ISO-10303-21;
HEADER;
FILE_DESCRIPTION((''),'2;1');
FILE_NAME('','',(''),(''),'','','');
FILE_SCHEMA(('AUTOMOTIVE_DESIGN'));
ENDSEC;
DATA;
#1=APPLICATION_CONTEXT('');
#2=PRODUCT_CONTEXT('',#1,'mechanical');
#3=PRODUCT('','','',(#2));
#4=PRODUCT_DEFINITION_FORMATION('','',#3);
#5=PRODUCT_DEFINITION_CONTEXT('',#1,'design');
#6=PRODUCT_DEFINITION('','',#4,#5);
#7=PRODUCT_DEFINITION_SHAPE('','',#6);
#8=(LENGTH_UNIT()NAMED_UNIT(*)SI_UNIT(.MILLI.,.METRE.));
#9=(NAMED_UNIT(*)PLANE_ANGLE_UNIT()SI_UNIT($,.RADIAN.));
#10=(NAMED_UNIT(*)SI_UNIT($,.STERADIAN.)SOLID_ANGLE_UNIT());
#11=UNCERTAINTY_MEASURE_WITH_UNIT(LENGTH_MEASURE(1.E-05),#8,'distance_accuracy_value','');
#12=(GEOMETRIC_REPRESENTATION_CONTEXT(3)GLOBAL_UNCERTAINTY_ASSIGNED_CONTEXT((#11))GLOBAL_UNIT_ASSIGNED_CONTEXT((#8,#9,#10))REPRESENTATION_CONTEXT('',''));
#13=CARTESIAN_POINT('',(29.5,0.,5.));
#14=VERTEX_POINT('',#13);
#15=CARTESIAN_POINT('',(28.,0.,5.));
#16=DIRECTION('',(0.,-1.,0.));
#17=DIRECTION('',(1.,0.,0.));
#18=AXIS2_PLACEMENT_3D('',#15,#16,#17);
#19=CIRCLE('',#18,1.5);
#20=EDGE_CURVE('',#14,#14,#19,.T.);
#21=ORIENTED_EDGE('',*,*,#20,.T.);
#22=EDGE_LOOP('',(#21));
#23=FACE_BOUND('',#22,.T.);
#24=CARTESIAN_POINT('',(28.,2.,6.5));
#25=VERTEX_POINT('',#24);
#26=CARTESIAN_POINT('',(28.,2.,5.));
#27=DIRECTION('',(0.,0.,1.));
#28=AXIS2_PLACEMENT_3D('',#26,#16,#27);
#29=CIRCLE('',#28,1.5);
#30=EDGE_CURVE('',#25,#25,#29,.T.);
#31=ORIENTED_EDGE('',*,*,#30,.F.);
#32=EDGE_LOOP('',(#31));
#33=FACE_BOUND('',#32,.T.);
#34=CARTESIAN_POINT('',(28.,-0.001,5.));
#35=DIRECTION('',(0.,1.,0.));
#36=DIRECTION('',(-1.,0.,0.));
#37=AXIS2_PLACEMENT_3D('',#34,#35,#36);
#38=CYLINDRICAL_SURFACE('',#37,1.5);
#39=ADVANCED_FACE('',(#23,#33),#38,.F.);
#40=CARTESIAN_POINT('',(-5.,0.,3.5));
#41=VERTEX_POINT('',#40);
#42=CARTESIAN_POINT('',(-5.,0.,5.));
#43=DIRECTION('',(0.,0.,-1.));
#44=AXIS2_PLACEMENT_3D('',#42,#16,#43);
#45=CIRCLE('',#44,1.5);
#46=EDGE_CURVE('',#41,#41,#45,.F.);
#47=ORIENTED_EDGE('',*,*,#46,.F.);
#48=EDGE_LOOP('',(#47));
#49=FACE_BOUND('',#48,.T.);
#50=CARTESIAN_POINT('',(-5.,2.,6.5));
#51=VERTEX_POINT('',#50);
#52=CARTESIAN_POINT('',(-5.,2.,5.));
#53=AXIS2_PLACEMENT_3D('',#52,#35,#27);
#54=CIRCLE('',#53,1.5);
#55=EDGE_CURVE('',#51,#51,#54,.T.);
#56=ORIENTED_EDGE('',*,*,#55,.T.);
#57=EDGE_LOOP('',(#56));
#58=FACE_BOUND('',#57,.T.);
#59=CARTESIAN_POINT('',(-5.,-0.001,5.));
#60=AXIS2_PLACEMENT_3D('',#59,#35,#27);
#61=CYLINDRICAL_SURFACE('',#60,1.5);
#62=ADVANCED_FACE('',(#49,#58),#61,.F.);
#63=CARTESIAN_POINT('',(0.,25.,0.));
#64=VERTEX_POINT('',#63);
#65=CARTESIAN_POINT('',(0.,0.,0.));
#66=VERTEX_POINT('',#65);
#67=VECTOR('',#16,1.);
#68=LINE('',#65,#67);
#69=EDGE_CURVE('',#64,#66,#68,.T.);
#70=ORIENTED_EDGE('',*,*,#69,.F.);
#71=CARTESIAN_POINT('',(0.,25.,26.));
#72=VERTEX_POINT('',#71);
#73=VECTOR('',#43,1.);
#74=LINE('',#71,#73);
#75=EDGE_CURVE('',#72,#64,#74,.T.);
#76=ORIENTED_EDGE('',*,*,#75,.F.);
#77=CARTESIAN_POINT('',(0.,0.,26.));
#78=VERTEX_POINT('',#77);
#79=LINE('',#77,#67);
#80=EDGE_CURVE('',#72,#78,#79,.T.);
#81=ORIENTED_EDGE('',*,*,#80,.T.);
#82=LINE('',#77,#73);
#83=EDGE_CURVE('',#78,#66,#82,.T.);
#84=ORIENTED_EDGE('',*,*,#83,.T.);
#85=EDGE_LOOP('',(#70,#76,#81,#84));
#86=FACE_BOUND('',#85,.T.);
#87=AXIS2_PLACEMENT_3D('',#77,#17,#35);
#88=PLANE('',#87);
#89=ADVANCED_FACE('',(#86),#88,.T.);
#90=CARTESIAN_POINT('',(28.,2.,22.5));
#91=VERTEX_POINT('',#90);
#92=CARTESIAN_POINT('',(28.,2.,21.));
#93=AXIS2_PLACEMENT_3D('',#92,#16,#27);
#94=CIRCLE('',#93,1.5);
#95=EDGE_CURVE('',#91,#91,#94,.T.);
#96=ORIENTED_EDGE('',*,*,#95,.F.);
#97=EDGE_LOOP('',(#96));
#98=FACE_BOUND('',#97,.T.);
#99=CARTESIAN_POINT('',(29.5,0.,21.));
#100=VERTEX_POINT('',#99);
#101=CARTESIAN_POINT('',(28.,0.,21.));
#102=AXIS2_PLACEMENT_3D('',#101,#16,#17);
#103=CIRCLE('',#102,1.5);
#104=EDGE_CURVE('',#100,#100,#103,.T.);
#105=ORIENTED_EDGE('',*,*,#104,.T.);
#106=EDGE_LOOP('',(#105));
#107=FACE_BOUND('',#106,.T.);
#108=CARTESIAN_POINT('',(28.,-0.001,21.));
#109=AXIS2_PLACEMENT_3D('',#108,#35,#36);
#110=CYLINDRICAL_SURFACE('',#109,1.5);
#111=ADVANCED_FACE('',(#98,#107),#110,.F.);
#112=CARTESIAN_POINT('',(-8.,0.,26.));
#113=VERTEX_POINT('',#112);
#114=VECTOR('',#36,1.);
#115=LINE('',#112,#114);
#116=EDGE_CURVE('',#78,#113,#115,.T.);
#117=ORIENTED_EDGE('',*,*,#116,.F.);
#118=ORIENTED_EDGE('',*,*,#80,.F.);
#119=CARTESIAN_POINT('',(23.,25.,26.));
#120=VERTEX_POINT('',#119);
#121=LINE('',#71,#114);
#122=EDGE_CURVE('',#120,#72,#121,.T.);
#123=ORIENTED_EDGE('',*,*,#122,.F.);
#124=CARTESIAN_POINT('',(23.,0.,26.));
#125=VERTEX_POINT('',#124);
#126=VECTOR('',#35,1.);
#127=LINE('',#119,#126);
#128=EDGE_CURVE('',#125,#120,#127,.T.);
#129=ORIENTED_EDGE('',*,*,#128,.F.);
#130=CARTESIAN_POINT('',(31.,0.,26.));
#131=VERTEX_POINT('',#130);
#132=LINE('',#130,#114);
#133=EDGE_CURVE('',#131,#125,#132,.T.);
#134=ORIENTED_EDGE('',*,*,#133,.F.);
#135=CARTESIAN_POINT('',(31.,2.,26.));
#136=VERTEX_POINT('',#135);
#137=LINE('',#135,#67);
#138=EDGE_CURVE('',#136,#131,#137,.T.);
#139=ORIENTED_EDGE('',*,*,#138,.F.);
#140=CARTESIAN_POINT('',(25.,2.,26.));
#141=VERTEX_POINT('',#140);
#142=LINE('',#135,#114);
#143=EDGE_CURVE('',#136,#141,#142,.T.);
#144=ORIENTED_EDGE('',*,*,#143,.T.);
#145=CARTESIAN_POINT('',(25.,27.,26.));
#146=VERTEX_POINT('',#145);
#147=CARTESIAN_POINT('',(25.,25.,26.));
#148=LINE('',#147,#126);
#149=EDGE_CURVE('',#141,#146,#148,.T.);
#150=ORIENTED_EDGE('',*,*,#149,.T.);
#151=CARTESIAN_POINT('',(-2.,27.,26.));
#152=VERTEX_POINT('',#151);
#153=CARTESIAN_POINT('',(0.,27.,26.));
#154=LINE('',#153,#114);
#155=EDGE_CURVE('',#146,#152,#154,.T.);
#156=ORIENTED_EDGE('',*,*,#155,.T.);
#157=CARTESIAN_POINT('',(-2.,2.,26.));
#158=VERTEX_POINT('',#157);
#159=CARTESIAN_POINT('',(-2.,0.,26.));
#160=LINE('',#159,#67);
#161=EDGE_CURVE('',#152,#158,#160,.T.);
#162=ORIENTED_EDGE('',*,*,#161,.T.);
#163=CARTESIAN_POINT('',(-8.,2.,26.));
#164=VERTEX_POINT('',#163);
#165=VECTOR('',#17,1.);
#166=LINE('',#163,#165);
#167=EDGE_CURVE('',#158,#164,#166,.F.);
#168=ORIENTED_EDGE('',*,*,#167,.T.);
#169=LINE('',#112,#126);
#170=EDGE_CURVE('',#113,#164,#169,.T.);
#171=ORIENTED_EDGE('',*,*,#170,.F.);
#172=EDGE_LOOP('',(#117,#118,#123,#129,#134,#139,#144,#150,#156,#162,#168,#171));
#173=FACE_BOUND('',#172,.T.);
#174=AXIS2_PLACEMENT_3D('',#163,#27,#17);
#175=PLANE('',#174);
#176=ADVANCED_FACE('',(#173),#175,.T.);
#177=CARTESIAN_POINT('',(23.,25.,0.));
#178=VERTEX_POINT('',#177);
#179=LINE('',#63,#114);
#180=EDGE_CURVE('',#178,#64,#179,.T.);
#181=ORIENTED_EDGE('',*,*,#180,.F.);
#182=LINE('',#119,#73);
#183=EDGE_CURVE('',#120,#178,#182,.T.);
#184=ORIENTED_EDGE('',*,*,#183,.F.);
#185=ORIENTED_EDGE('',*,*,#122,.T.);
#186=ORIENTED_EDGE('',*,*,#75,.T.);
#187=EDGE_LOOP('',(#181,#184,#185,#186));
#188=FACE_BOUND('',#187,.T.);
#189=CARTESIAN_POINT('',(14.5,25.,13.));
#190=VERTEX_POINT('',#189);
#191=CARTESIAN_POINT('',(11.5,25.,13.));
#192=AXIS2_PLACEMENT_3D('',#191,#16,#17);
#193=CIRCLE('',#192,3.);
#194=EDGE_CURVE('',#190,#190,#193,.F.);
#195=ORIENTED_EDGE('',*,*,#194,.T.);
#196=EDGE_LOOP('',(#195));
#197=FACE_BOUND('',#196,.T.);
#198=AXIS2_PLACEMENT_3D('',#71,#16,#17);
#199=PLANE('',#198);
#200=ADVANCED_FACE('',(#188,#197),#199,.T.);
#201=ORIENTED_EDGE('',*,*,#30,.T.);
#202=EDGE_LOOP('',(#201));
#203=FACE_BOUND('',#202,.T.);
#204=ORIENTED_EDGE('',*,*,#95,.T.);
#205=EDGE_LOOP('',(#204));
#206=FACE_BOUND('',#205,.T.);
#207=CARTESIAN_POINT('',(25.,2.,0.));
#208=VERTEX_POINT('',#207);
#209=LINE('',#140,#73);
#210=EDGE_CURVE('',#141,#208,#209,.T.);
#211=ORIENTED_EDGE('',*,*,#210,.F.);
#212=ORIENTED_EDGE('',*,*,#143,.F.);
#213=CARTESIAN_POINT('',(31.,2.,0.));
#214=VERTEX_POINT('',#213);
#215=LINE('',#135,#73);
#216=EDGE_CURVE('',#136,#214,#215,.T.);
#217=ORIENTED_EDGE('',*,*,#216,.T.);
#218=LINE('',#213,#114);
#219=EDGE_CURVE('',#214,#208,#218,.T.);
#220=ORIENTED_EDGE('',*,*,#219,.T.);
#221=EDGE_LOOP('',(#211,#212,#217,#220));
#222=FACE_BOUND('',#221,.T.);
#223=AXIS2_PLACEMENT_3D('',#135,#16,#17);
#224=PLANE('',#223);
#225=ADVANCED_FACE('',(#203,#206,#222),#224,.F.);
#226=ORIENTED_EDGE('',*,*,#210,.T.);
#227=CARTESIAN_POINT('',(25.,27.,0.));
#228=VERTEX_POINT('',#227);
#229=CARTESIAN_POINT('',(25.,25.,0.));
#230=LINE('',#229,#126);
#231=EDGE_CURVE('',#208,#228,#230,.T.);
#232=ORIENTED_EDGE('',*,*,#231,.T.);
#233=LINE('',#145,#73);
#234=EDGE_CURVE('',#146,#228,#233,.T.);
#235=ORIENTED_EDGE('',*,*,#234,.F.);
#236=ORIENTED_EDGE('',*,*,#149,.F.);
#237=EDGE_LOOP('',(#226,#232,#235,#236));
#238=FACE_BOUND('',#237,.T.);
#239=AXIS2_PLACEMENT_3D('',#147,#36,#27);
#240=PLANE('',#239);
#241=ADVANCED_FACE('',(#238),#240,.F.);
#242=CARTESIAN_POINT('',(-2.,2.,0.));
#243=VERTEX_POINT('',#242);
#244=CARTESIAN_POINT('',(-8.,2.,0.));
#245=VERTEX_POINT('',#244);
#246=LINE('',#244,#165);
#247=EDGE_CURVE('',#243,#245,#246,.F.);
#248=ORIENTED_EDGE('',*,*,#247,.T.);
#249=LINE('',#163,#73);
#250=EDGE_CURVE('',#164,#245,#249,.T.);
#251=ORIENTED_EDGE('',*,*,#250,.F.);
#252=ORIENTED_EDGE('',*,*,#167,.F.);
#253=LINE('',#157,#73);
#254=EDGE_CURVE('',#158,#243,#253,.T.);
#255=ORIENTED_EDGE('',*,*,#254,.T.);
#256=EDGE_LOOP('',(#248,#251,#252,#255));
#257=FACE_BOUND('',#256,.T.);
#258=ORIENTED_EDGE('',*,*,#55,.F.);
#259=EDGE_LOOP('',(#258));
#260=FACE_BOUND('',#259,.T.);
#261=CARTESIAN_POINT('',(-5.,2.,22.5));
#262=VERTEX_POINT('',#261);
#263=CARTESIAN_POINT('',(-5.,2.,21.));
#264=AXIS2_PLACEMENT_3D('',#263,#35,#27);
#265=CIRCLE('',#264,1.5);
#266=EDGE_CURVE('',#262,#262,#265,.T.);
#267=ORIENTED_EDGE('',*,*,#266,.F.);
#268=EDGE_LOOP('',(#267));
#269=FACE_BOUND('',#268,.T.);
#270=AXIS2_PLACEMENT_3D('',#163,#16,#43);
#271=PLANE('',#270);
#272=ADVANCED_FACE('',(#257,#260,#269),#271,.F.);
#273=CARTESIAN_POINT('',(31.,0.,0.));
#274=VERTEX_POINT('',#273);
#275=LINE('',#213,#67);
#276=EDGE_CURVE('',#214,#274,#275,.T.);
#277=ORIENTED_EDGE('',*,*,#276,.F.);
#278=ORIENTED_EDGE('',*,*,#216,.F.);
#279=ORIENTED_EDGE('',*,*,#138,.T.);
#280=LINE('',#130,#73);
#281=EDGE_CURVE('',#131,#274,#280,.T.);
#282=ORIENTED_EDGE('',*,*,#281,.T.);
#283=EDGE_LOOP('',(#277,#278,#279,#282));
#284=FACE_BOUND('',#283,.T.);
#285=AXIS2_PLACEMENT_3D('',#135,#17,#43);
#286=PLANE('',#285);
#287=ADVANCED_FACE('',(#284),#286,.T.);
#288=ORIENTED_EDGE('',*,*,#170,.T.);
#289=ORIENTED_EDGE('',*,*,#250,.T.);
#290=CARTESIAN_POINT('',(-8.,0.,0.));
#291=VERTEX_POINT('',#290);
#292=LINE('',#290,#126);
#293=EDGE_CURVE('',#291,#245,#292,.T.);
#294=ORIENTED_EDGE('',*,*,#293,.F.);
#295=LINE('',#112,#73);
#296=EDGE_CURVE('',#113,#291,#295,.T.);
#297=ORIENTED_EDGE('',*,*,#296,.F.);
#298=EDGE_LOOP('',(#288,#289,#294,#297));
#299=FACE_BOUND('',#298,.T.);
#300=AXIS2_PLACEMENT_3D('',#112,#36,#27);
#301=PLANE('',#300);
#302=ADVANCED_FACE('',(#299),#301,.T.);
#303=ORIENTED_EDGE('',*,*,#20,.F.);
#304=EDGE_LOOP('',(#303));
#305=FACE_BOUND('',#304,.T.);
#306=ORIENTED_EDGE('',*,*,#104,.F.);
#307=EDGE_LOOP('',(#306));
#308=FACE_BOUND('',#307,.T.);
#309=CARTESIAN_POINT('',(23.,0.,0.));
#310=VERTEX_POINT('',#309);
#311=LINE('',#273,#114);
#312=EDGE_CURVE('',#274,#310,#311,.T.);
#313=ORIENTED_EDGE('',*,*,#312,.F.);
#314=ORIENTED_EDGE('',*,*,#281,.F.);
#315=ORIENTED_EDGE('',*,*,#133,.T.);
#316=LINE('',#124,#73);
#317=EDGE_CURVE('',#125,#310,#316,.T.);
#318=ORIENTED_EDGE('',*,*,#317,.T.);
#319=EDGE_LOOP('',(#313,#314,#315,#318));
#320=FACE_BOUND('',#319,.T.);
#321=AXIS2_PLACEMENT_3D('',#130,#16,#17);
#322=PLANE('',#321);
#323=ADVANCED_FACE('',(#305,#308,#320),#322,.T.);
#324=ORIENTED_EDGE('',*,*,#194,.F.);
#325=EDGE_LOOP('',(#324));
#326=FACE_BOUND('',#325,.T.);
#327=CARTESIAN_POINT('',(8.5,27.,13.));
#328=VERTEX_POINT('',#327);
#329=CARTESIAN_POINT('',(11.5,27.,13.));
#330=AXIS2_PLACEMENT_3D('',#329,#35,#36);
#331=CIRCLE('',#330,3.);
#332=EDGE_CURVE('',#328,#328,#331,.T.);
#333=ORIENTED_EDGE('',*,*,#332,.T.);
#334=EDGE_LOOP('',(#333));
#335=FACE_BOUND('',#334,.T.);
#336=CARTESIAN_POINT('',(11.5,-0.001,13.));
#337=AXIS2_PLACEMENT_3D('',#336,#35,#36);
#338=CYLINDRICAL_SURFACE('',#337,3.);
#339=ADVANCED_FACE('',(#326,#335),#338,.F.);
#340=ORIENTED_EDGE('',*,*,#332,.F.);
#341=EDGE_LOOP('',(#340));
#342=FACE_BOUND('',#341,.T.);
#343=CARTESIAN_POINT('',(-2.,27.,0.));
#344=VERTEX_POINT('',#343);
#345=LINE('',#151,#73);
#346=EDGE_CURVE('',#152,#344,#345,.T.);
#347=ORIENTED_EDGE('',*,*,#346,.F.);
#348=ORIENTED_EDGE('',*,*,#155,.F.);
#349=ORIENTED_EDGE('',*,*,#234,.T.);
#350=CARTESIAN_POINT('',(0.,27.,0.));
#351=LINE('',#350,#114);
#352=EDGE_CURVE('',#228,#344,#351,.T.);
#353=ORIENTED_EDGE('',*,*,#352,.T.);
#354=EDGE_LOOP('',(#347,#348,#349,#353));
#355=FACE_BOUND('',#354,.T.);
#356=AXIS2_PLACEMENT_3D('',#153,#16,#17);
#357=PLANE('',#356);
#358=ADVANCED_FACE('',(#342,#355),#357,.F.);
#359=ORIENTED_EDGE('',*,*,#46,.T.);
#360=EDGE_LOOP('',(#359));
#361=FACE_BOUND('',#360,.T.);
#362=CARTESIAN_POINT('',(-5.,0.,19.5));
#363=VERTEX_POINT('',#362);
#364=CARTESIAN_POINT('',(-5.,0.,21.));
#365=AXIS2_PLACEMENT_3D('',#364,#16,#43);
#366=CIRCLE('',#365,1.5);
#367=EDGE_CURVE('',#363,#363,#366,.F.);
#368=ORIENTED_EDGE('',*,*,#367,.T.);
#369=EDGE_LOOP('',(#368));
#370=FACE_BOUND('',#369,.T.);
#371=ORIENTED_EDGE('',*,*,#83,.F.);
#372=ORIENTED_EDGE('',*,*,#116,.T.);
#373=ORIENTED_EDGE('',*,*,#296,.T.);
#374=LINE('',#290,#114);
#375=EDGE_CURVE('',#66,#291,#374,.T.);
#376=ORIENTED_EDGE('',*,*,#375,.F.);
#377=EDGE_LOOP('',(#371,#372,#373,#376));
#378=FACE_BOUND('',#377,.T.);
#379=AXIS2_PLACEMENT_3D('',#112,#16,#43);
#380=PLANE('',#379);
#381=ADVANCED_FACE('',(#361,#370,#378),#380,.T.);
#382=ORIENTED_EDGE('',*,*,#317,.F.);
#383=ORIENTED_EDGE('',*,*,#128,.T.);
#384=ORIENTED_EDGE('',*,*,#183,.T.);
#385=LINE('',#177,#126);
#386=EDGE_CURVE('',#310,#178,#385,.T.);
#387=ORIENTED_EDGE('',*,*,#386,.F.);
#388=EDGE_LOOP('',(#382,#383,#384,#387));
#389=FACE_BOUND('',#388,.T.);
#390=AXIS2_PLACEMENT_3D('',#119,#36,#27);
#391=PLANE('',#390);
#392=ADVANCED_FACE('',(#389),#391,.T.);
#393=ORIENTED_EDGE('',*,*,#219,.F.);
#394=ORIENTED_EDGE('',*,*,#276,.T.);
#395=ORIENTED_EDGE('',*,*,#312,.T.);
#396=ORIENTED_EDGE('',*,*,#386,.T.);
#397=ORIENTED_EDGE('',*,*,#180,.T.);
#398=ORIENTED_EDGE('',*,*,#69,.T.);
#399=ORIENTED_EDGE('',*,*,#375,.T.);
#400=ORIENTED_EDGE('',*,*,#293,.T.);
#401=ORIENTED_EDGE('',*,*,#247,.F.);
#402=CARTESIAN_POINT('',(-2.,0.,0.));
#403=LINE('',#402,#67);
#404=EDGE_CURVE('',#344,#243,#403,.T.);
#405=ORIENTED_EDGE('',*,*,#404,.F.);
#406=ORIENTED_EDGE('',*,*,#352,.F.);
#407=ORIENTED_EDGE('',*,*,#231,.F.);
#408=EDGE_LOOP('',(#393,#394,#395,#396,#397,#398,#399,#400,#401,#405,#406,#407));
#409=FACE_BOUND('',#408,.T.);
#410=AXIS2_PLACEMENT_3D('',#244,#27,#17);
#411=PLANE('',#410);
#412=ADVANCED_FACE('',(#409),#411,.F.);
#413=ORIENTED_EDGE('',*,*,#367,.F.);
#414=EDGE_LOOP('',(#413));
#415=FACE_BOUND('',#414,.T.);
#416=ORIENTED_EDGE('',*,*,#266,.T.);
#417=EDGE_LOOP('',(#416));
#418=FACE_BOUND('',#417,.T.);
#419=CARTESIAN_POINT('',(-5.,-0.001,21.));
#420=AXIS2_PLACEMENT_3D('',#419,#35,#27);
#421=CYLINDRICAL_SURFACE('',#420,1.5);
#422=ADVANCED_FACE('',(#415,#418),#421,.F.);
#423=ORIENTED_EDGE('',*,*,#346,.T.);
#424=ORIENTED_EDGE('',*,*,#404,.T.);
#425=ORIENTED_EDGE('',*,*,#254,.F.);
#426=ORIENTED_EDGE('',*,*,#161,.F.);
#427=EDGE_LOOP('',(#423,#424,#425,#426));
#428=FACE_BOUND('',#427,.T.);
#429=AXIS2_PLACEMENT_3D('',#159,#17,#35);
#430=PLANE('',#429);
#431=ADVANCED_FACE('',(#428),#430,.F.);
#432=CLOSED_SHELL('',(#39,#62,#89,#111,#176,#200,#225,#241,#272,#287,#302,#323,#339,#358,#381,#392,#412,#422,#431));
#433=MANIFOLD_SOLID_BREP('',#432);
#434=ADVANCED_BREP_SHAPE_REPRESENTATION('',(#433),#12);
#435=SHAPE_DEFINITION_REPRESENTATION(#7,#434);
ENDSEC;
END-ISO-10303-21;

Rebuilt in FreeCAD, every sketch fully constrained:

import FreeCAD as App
import Part
import Sketcher
Q = App.Units.Quantity

doc = App.newDocument("Part")
body = doc.addObject("PartDesign::Body", "Body")

sketch1 = body.newObject("Sketcher::SketchObject", "Sketch")
sketch1.AttachmentSupport = (doc.getObject("XY_Plane"), [""])
sketch1.MapMode = "FlatFace"
sketch1.addGeometry(Part.LineSegment(App.Vector(-8, 0, 0), App.Vector(0, 0, 0)), False)
sketch1.addGeometry(Part.LineSegment(App.Vector(0, 0, 0), App.Vector(0, 25, 0)), False)
sketch1.addGeometry(Part.LineSegment(App.Vector(0, 25, 0), App.Vector(23, 25, 0)), False)
sketch1.addGeometry(Part.LineSegment(App.Vector(23, 25, 0), App.Vector(23, 0, 0)), False)
sketch1.addGeometry(Part.LineSegment(App.Vector(23, 0, 0), App.Vector(31, 0, 0)), False)
sketch1.addGeometry(Part.LineSegment(App.Vector(31, 0, 0), App.Vector(31, 2, 0)), False)
sketch1.addGeometry(Part.LineSegment(App.Vector(31, 2, 0), App.Vector(25, 2, 0)), False)
sketch1.addGeometry(Part.LineSegment(App.Vector(25, 2, 0), App.Vector(25, 27, 0)), False)
sketch1.addGeometry(Part.LineSegment(App.Vector(25, 27, 0), App.Vector(-2, 27, 0)), False)
sketch1.addGeometry(Part.LineSegment(App.Vector(-2, 27, 0), App.Vector(-2, 2, 0)), False)
sketch1.addGeometry(Part.LineSegment(App.Vector(-2, 2, 0), App.Vector(-8, 2, 0)), False)
sketch1.addGeometry(Part.LineSegment(App.Vector(-8, 2, 0), App.Vector(-8, 0, 0)), False)
sketch1.addConstraint(Sketcher.Constraint("Coincident", 0, 2, 1, 1))
sketch1.addConstraint(Sketcher.Constraint("Coincident", 1, 2, 2, 1))
sketch1.addConstraint(Sketcher.Constraint("Coincident", 2, 2, 3, 1))
sketch1.addConstraint(Sketcher.Constraint("Coincident", 3, 2, 4, 1))
sketch1.addConstraint(Sketcher.Constraint("Coincident", 4, 2, 5, 1))
sketch1.addConstraint(Sketcher.Constraint("Coincident", 5, 2, 6, 1))
sketch1.addConstraint(Sketcher.Constraint("Coincident", 6, 2, 7, 1))
sketch1.addConstraint(Sketcher.Constraint("Coincident", 7, 2, 8, 1))
sketch1.addConstraint(Sketcher.Constraint("Coincident", 8, 2, 9, 1))
sketch1.addConstraint(Sketcher.Constraint("Coincident", 9, 2, 10, 1))
sketch1.addConstraint(Sketcher.Constraint("Coincident", 10, 2, 11, 1))
sketch1.addConstraint(Sketcher.Constraint("Coincident", 11, 2, 0, 1))
sketch1.addConstraint(Sketcher.Constraint("Horizontal", 0))
sketch1.addConstraint(Sketcher.Constraint("Vertical", 1))
sketch1.addConstraint(Sketcher.Constraint("Horizontal", 2))
sketch1.addConstraint(Sketcher.Constraint("Vertical", 3))
sketch1.addConstraint(Sketcher.Constraint("Horizontal", 4))
sketch1.addConstraint(Sketcher.Constraint("Vertical", 5))
sketch1.addConstraint(Sketcher.Constraint("Horizontal", 6))
sketch1.addConstraint(Sketcher.Constraint("Vertical", 7))
sketch1.addConstraint(Sketcher.Constraint("Horizontal", 8))
sketch1.addConstraint(Sketcher.Constraint("Vertical", 9))
sketch1.addConstraint(Sketcher.Constraint("Horizontal", 10))
sketch1.addConstraint(Sketcher.Constraint("Vertical", 11))
sketch1.addConstraint(Sketcher.Constraint("Coincident", 0, 2, -1, 1))
sketch1.addConstraint(Sketcher.Constraint("PointOnObject", 3, 2, -1))
sketch1.addConstraint(Sketcher.Constraint("Horizontal", 6, 2, 9, 2))
sketch1.addConstraint(Sketcher.Constraint("Equal", 0, 4))
sketch1.addConstraint(Sketcher.Constraint("Equal", 6, 10))
sketch1.addConstraint(Sketcher.Constraint("Equal", 3, 7))
sketch1.addConstraint(Sketcher.Constraint("DistanceX", 0, 1, 0, 2, Q("8 mm")))
sketch1.addConstraint(Sketcher.Constraint("DistanceX", 2, 1, 2, 2, Q("23 mm")))
sketch1.addConstraint(Sketcher.Constraint("DistanceX", 6, 2, 6, 1, Q("6 mm")))
sketch1.addConstraint(Sketcher.Constraint("DistanceY", 1, 1, 1, 2, Q("25 mm")))
sketch1.addConstraint(Sketcher.Constraint("DistanceY", 5, 1, 5, 2, Q("2 mm")))
pad1 = body.newObject("PartDesign::Pad", "Pad")
pad1.Profile = sketch1
pad1.Length = 26

sketch2 = body.newObject("Sketcher::SketchObject", "Sketch001")
sketch2.AttachmentSupport = (doc.getObject("XZ_Plane"), [""])
sketch2.MapMode = "FlatFace"
sketch2.AttachmentOffset = App.Placement(App.Vector(0, 0, -27), App.Rotation())
sketch2.addGeometry(Part.Circle(App.Vector(11.5, 13, 0), App.Vector(0, 0, 1), 3), False)
sketch2.addConstraint(Sketcher.Constraint("Diameter", 0, Q("6 mm")))
sketch2.addConstraint(Sketcher.Constraint("DistanceY", -1, 1, 0, 3, Q("13 mm")))
sketch2.addConstraint(Sketcher.Constraint("DistanceX", -1, 1, 0, 3, Q("11.5 mm")))
pocket1 = body.newObject("PartDesign::Pocket", "Pocket")
pocket1.Profile = sketch2
pocket1.Type = "UpToFirst"
pocket1.Reversed = True

sketch3 = body.newObject("Sketcher::SketchObject", "Sketch002")
sketch3.AttachmentSupport = (doc.getObject("XZ_Plane"), [""])
sketch3.MapMode = "FlatFace"
sketch3.AttachmentOffset = App.Placement(App.Vector(0, 0, -2), App.Rotation())
sketch3.addGeometry(Part.Circle(App.Vector(-5, 21, 0), App.Vector(0, 0, 1), 1.5), False)
sketch3.addGeometry(Part.Circle(App.Vector(-5, 5, 0), App.Vector(0, 0, 1), 1.5), False)
sketch3.addConstraint(Sketcher.Constraint("Equal", 0, 1))
sketch3.addConstraint(Sketcher.Constraint("Vertical", 0, 3, 1, 3))
sketch3.addConstraint(Sketcher.Constraint("Diameter", 0, Q("3 mm")))
sketch3.addConstraint(Sketcher.Constraint("DistanceX", 0, 3, -1, 1, Q("5 mm")))
sketch3.addConstraint(Sketcher.Constraint("DistanceY", -1, 1, 0, 3, Q("21 mm")))
sketch3.addConstraint(Sketcher.Constraint("DistanceY", -1, 1, 1, 3, Q("5 mm")))
pocket2 = body.newObject("PartDesign::Pocket", "Pocket001")
pocket2.Profile = sketch3
pocket2.Length = 2
pocket2.Reversed = True
doc.recompute()

datumplane = body.newObject("PartDesign::Plane", "DatumPlane")
datumplane.AttachmentSupport = (doc.getObject("YZ_Plane"), [""])
datumplane.MapMode = "FlatFace"
datumplane.AttachmentOffset = App.Placement(App.Vector(0, 0, 11.5), App.Rotation())
mirrored = body.newObject("PartDesign::Mirrored", "Mirrored")
mirrored.Originals = [pocket2]
mirrored.MirrorPlane = (datumplane, [""])
body.Tip = mirrored

doc.recompute()
